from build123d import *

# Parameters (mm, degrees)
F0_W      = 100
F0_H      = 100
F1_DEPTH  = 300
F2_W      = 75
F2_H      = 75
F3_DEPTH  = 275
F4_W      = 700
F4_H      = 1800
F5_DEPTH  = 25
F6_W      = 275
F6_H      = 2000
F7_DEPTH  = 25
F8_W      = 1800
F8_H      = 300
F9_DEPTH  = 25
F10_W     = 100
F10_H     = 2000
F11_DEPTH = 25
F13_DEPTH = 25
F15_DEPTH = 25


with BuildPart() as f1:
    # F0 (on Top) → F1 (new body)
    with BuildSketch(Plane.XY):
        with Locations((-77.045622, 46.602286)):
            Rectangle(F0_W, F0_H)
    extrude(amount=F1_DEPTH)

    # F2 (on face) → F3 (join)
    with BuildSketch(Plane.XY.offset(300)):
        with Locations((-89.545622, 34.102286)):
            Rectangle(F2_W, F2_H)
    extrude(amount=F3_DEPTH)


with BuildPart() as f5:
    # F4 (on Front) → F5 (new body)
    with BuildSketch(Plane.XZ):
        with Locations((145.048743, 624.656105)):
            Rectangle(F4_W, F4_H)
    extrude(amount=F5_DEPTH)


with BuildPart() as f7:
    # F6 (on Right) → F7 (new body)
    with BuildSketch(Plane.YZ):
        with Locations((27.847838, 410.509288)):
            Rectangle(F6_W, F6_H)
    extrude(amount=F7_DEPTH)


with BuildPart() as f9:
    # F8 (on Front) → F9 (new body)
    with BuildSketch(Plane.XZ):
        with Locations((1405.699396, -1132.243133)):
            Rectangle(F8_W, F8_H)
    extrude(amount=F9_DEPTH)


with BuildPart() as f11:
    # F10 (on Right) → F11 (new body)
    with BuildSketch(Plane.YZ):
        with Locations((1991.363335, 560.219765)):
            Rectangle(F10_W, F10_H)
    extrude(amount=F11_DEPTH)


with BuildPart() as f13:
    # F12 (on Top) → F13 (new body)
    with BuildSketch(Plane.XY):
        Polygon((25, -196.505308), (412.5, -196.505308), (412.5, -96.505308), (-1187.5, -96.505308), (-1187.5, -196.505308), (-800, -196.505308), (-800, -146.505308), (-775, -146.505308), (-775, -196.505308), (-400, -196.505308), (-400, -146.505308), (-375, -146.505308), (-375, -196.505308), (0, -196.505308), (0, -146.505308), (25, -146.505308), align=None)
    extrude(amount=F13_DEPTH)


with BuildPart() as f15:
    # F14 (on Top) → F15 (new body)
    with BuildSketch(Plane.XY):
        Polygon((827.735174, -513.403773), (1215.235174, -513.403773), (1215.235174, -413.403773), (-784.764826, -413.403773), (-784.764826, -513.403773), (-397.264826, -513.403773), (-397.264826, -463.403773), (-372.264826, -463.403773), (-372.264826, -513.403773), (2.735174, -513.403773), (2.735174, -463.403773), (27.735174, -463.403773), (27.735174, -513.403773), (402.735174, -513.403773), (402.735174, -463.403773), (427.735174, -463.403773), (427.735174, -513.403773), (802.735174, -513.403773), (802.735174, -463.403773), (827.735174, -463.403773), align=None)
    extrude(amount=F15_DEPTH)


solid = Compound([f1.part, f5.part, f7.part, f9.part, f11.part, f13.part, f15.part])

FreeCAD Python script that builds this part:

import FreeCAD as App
import Part
import Sketcher

V = App.Vector

doc = App.newDocument("Part")
body = doc.addObject("PartDesign::Body", "Body")

# Sketch on XY plane
sketch1 = doc.addObject("Sketcher::SketchObject", "Sketch")
body.addObject(sketch1)
sketch1.AttachmentSupport = (doc.XY_Plane, [""])
sketch1.MapMode = "FlatFace"
sketch1.addGeometry(Part.LineSegment(V(-127, 97, 0), V(-127, -3, 0)), False)
sketch1.addGeometry(Part.LineSegment(V(-127, -3, 0), V(-27, -3, 0)), False)
sketch1.addGeometry(Part.LineSegment(V(-27, -3, 0), V(-27, 97, 0)), False)
sketch1.addGeometry(Part.LineSegment(V(-27, 97, 0), V(-127, 97, 0)), False)
sketch1.addConstraint(Sketcher.Constraint("Coincident", 0, 2, 1, 1))
sketch1.addConstraint(Sketcher.Constraint("Coincident", 1, 2, 2, 1))
sketch1.addConstraint(Sketcher.Constraint("Coincident", 2, 2, 3, 1))
sketch1.addConstraint(Sketcher.Constraint("Coincident", 3, 2, 0, 1))
sketch1.addConstraint(Sketcher.Constraint("Vertical", 0))
sketch1.addConstraint(Sketcher.Constraint("Horizontal", 1))
sketch1.addConstraint(Sketcher.Constraint("Vertical", 2))
sketch1.addConstraint(Sketcher.Constraint("Horizontal", 3))
sketch1.addConstraint(Sketcher.Constraint("Equal", 3, 0))
sketch1.addConstraint(Sketcher.Constraint("DistanceX", 1, 1, 1, 2, 100.0))
sketch1.addConstraint(Sketcher.Constraint("DistanceX", 0, 2, -1, 1, 127.045622))
sketch1.addConstraint(Sketcher.Constraint("DistanceY", 0, 2, -1, 1, 3.397714))
pad1 = doc.addObject("PartDesign::Pad", "Pad")
body.addObject(pad1)
pad1.Profile = sketch1
pad1.Length = 300

# Sketch on XY plane
sketch2 = doc.addObject("Sketcher::SketchObject", "Sketch001")
body.addObject(sketch2)
sketch2.AttachmentSupport = (doc.XY_Plane, [""])
sketch2.MapMode = "FlatFace"
sketch2.AttachmentOffset = App.Placement(V(0, 0, 300), App.Rotation())
sketch2.addGeometry(Part.LineSegment(V(-127, 72, 0), V(-127, -3, 0)), False)
sketch2.addGeometry(Part.LineSegment(V(-127, -3, 0), V(-52, -3, 0)), False)
sketch2.addGeometry(Part.LineSegment(V(-52, -3, 0), V(-52, 72, 0)), False)
sketch2.addGeometry(Part.LineSegment(V(-52, 72, 0), V(-127, 72, 0)), False)
sketch2.addConstraint(Sketcher.Constraint("Coincident", 0, 2, 1, 1))
sketch2.addConstraint(Sketcher.Constraint("Coincident", 1, 2, 2, 1))
sketch2.addConstraint(Sketcher.Constraint("Coincident", 2, 2, 3, 1))
sketch2.addConstraint(Sketcher.Constraint("Coincident", 3, 2, 0, 1))
sketch2.addConstraint(Sketcher.Constraint("Vertical", 0))
sketch2.addConstraint(Sketcher.Constraint("Horizontal", 1))
sketch2.addConstraint(Sketcher.Constraint("Vertical", 2))
sketch2.addConstraint(Sketcher.Constraint("Horizontal", 3))
sketch2.addConstraint(Sketcher.Constraint("Equal", 3, 0))
sketch2.addConstraint(Sketcher.Constraint("DistanceX", 1, 1, 1, 2, 75.0))
sketch2.addConstraint(Sketcher.Constraint("DistanceX", 0, 2, -1, 1, 127.045622))
sketch2.addConstraint(Sketcher.Constraint("DistanceY", 0, 2, -1, 1, 3.397714))
pad2 = doc.addObject("PartDesign::Pad", "Pad001")
body.addObject(pad2)
pad2.Profile = sketch2
pad2.Length = 275
body2 = doc.addObject("PartDesign::Body", "Body001")

# Sketch on XZ plane
sketch3 = doc.addObject("Sketcher::SketchObject", "Sketch002")
body2.addObject(sketch3)
sketch3.AttachmentSupport = (doc.getObject("XZ_Plane001"), [""])
sketch3.MapMode = "FlatFace"
sketch3.addGeometry(Part.LineSegment(V(-205, 1525, 0), V(-205, -275, 0)), False)
sketch3.addGeometry(Part.LineSegment(V(-205, -275, 0), V(495, -275, 0)), False)
sketch3.addGeometry(Part.LineSegment(V(495, -275, 0), V(495, 1525, 0)), False)
sketch3.addGeometry(Part.LineSegment(V(495, 1525, 0), V(-205, 1525, 0)), False)
sketch3.addConstraint(Sketcher.Constraint("Coincident", 0, 2, 1, 1))
sketch3.addConstraint(Sketcher.Constraint("Coincident", 1, 2, 2, 1))
sketch3.addConstraint(Sketcher.Constraint("Coincident", 2, 2, 3, 1))
sketch3.addConstraint(Sketcher.Constraint("Coincident", 3, 2, 0, 1))
sketch3.addConstraint(Sketcher.Constraint("Vertical", 0))
sketch3.addConstraint(Sketcher.Constraint("Horizontal", 1))
sketch3.addConstraint(Sketcher.Constraint("Vertical", 2))
sketch3.addConstraint(Sketcher.Constraint("Horizontal", 3))
sketch3.addConstraint(Sketcher.Constraint("DistanceX", 1, 1, 1, 2, 700.0))
sketch3.addConstraint(Sketcher.Constraint("DistanceY", 0, 2, 0, 1, 1800.0))
sketch3.addConstraint(Sketcher.Constraint("DistanceX", 0, 2, -1, 1, 204.951257))
sketch3.addConstraint(Sketcher.Constraint("DistanceY", 0, 2, -1, 1, 275.343895))
pad3 = doc.addObject("PartDesign::Pad", "Pad002")
body2.addObject(pad3)
pad3.Profile = sketch3
pad3.Length = 25
body3 = doc.addObject("PartDesign::Body", "Body002")

# Sketch on YZ plane
sketch4 = doc.addObject("Sketcher::SketchObject", "Sketch003")
body3.addObject(sketch4)
sketch4.AttachmentSupport = (doc.getObject("YZ_Plane002"), [""])
sketch4.MapMode = "FlatFace"
sketch4.addGeometry(Part.LineSegment(V(-110, 1411, 0), V(-110, -589, 0)), False)
sketch4.addGeometry(Part.LineSegment(V(-110, -589, 0), V(165, -589, 0)), False)
sketch4.addGeometry(Part.LineSegment(V(165, -589, 0), V(165, 1411, 0)), False)
sketch4.addGeometry(Part.LineSegment(V(165, 1411, 0), V(-110, 1411, 0)), False)
sketch4.addConstraint(Sketcher.Constraint("Coincident", 0, 2, 1, 1))
sketch4.addConstraint(Sketcher.Constraint("Coincident", 1, 2, 2, 1))
sketch4.addConstraint(Sketcher.Constraint("Coincident", 2, 2, 3, 1))
sketch4.addConstraint(Sketcher.Constraint("Coincident", 3, 2, 0, 1))
sketch4.addConstraint(Sketcher.Constraint("Vertical", 0))
sketch4.addConstraint(Sketcher.Constraint("Horizontal", 1))
sketch4.addConstraint(Sketcher.Constraint("Vertical", 2))
sketch4.addConstraint(Sketcher.Constraint("Horizontal", 3))
sketch4.addConstraint(Sketcher.Constraint("DistanceX", 1, 1, 1, 2, 275.0))
sketch4.addConstraint(Sketcher.Constraint("DistanceY", 0, 2, 0, 1, 2000.0))
sketch4.addConstraint(Sketcher.Constraint("DistanceY", 0, 2, -1, 1, 589.490712))
sketch4.addConstraint(Sketcher.Constraint("DistanceX", -1, 1, 1, 2, 165.347838))
pad4 = doc.addObject("PartDesign::Pad", "Pad003")
body3.addObject(pad4)
pad4.Profile = sketch4
pad4.Length = 25
body4 = doc.addObject("PartDesign::Body", "Body003")

# Sketch on XZ plane
sketch5 = doc.addObject("Sketcher::SketchObject", "Sketch004")
body4.addObject(sketch5)
sketch5.AttachmentSupport = (doc.getObject("XZ_Plane003"), [""])
sketch5.MapMode = "FlatFace"
sketch5.addGeometry(Part.LineSegment(V(506, -982, 0), V(506, -1282, 0)), False)
sketch5.addGeometry(Part.LineSegment(V(506, -1282, 0), V(2306, -1282, 0)), False)
sketch5.addGeometry(Part.LineSegment(V(2306, -1282, 0), V(2306, -982, 0)), False)
sketch5.addGeometry(Part.LineSegment(V(2306, -982, 0), V(506, -982, 0)), False)
sketch5.addConstraint(Sketcher.Constraint("Coincident", 0, 2, 1, 1))
sketch5.addConstraint(Sketcher.Constraint("Coincident", 1, 2, 2, 1))
sketch5.addConstraint(Sketcher.Constraint("Coincident", 2, 2, 3, 1))
sketch5.addConstraint(Sketcher.Constraint("Coincident", 3, 2, 0, 1))
sketch5.addConstraint(Sketcher.Constraint("Vertical", 0))
sketch5.addConstraint(Sketcher.Constraint("Horizontal", 1))
sketch5.addConstraint(Sketcher.Constraint("Vertical", 2))
sketch5.addConstraint(Sketcher.Constraint("Horizontal", 3))
sketch5.addConstraint(Sketcher.Constraint("DistanceX", 1, 1, 1, 2, 1800.0))
sketch5.addConstraint(Sketcher.Constraint("DistanceY", 0, 2, 0, 1, 300.0))
sketch5.addConstraint(Sketcher.Constraint("DistanceX", -1, 1, 0, 2, 505.699396))
sketch5.addConstraint(Sketcher.Constraint("DistanceY", 0, 2, -1, 1, 1282.243133))
pad5 = doc.addObject("PartDesign::Pad", "Pad004")
body4.addObject(pad5)
pad5.Profile = sketch5
pad5.Length = 25
body5 = doc.addObject("PartDesign::Body", "Body004")

# Sketch on YZ plane
sketch6 = doc.addObject("Sketcher::SketchObject", "Sketch005")
body5.addObject(sketch6)
sketch6.AttachmentSupport = (doc.getObject("YZ_Plane004"), [""])
sketch6.MapMode = "FlatFace"
sketch6.addGeometry(Part.LineSegment(V(1941, 1560, 0), V(1941, -440, 0)), False)
sketch6.addGeometry(Part.LineSegment(V(1941, -440, 0), V(2041, -440, 0)), False)
sketch6.addGeometry(Part.LineSegment(V(2041, -440, 0), V(2041, 1560, 0)), False)
sketch6.addGeometry(Part.LineSegment(V(2041, 1560, 0), V(1941, 1560, 0)), False)
sketch6.addConstraint(Sketcher.Constraint("Coincident", 0, 2, 1, 1))
sketch6.addConstraint(Sketcher.Constraint("Coincident", 1, 2, 2, 1))
sketch6.addConstraint(Sketcher.Constraint("Coincident", 2, 2, 3, 1))
sketch6.addConstraint(Sketcher.Constraint("Coincident", 3, 2, 0, 1))
sketch6.addConstraint(Sketcher.Constraint("Vertical", 0))
sketch6.addConstraint(Sketcher.Constraint("Horizontal", 1))
sketch6.addConstraint(Sketcher.Constraint("Vertical", 2))
sketch6.addConstraint(Sketcher.Constraint("Horizontal", 3))
sketch6.addConstraint(Sketcher.Constraint("DistanceX", 1, 1, 1, 2, 100.0))
sketch6.addConstraint(Sketcher.Constraint("DistanceY", 0, 2, 0, 1, 2000.0))
sketch6.addConstraint(Sketcher.Constraint("DistanceX", -1, 1, 0, 2, 1941.363335))
sketch6.addConstraint(Sketcher.Constraint("DistanceY", 0, 2, -1, 1, 439.780235))
pad6 = doc.addObject("PartDesign::Pad", "Pad005")
body5.addObject(pad6)
pad6.Profile = sketch6
pad6.Length = 25
body6 = doc.addObject("PartDesign::Body", "Body005")

# Sketch on XY plane
sketch7 = doc.addObject("Sketcher::SketchObject", "Sketch006")
body6.addObject(sketch7)
sketch7.AttachmentSupport = (doc.getObject("XY_Plane005"), [""])
sketch7.MapMode = "FlatFace"
sketch7.addGeometry(Part.LineSegment(V(25, -197, 0), V(412, -197, 0)), False)
sketch7.addGeometry(Part.LineSegment(V(412, -197, 0), V(412, -97, 0)), False)
sketch7.addGeometry(Part.LineSegment(V(412, -97, 0), V(-1188, -97, 0)), False)
sketch7.addGeometry(Part.LineSegment(V(-1188, -97, 0), V(-1188, -197, 0)), False)
sketch7.addGeometry(Part.LineSegment(V(-1188, -197, 0), V(-800, -197, 0)), False)
sketch7.addGeometry(Part.LineSegment(V(-800, -197, 0), V(-800, -147, 0)), False)
sketch7.addGeometry(Part.LineSegment(V(-800, -147, 0), V(-775, -147, 0)), False)
sketch7.addGeometry(Part.LineSegment(V(-775, -147, 0), V(-775, -197, 0)), False)
sketch7.addGeometry(Part.LineSegment(V(-775, -197, 0), V(-400, -197, 0)), False)
sketch7.addGeometry(Part.LineSegment(V(-400, -197, 0), V(-400, -147, 0)), False)
sketch7.addGeometry(Part.LineSegment(V(-400, -147, 0), V(-375, -147, 0)), False)
sketch7.addGeometry(Part.LineSegment(V(-375, -147, 0), V(-375, -197, 0)), False)
sketch7.addGeometry(Part.LineSegment(V(-375, -197, 0), V(0, -197, 0)), False)
sketch7.addGeometry(Part.LineSegment(V(0, -197, 0), V(0, -147, 0)), False)
sketch7.addGeometry(Part.LineSegment(V(0, -147, 0), V(25, -147, 0)), False)
sketch7.addGeometry(Part.LineSegment(V(25, -147, 0), V(25, -197, 0)), False)
sketch7.addConstraint(Sketcher.Constraint("Coincident", 0, 2, 1, 1))
sketch7.addConstraint(Sketcher.Constraint("Coincident", 1, 2, 2, 1))
sketch7.addConstraint(Sketcher.Constraint("Coincident", 2, 2, 3, 1))
sketch7.addConstraint(Sketcher.Constraint("Coincident", 3, 2, 4, 1))
sketch7.addConstraint(Sketcher.Constraint("Coincident", 4, 2, 5, 1))
sketch7.addConstraint(Sketcher.Constraint("Coincident", 5, 2, 6, 1))
sketch7.addConstraint(Sketcher.Constraint("Coincident", 6, 2, 7, 1))
sketch7.addConstraint(Sketcher.Constraint("Coincident", 7, 2, 8, 1))
sketch7.addConstraint(Sketcher.Constraint("Coincident", 8, 2, 9, 1))
sketch7.addConstraint(Sketcher.Constraint("Coincident", 9, 2, 10, 1))
sketch7.addConstraint(Sketcher.Constraint("Coincident", 10, 2, 11, 1))
sketch7.addConstraint(Sketcher.Constraint("Coincident", 11, 2, 12, 1))
sketch7.addConstraint(Sketcher.Constraint("Coincident", 12, 2, 13, 1))
sketch7.addConstraint(Sketcher.Constraint("Coincident", 13, 2, 14, 1))
sketch7.addConstraint(Sketcher.Constraint("Coincident", 14, 2, 15, 1))
sketch7.addConstraint(Sketcher.Constraint("Coincident", 15, 2, 0, 1))
sketch7.addConstraint(Sketcher.Constraint("Horizontal", 0))
sketch7.addConstraint(Sketcher.Constraint("Vertical", 1))
sketch7.addConstraint(Sketcher.Constraint("Horizontal", 2))
sketch7.addConstraint(Sketcher.Constraint("Vertical", 3))
sketch7.addConstraint(Sketcher.Constraint("Horizontal", 4))
sketch7.addConstraint(Sketcher.Constraint("Vertical", 5))
sketch7.addConstraint(Sketcher.Constraint("Horizontal", 6))
sketch7.addConstraint(Sketcher.Constraint("Vertical", 7))
sketch7.addConstraint(Sketcher.Constraint("Horizontal", 8))
sketch7.addConstraint(Sketcher.Constraint("Vertical", 9))
sketch7.addConstraint(Sketcher.Constraint("Horizontal", 10))
sketch7.addConstraint(Sketcher.Constraint("Vertical", 11))
sketch7.addConstraint(Sketcher.Constraint("Horizontal", 12))
sketch7.addConstraint(Sketcher.Constraint("Vertical", 13))
sketch7.addConstraint(Sketcher.Constraint("Horizontal", 14))
sketch7.addConstraint(Sketcher.Constraint("Vertical", 15))
sketch7.addConstraint(Sketcher.Constraint("PointOnObject", 12, 2, -2))
sketch7.addConstraint(Sketcher.Constraint("Horizontal", 0, 2, 3, 2))
sketch7.addConstraint(Sketcher.Constraint("Horizontal", 4, 2, 7, 2))
sketch7.addConstraint(Sketcher.Constraint("Horizontal", 6, 2, 9, 2))
sketch7.addConstraint(Sketcher.Constraint("Horizontal", 8, 2, 11, 2))
sketch7.addConstraint(Sketcher.Constraint("Horizontal", 10, 2, 13, 2))
sketch7.addConstraint(Sketcher.Constraint("Equal", 0, 4))
sketch7.addConstraint(Sketcher.Constraint("Equal", 6, 10))
sketch7.addConstraint(Sketcher.Constraint("Equal", 8, 12))
sketch7.addConstraint(Sketcher.Constraint("Equal", 10, 14))
sketch7.addConstraint(Sketcher.Constraint("DistanceX", 2, 2, 2, 1, 1600.0))
sketch7.addConstraint(Sketcher.Constraint("DistanceX", 6, 1, 6, 2, 25.0))
sketch7.addConstraint(Sketcher.Constraint("DistanceX", 8, 1, 8, 2, 375.0))
sketch7.addConstraint(Sketcher.Constraint("DistanceY", 1, 1, 1, 2, 100.0))
sketch7.addConstraint(Sketcher.Constraint("DistanceY", 5, 1, 5, 2, 50.0))
sketch7.addConstraint(Sketcher.Constraint("DistanceY", 0, 2, -1, 1, 196.505308))
pad7 = doc.addObject("PartDesign::Pad", "Pad006")
body6.addObject(pad7)
pad7.Profile = sketch7
pad7.Length = 25
body7 = doc.addObject("PartDesign::Body", "Body006")

# Sketch on XY plane
sketch8 = doc.addObject("Sketcher::SketchObject", "Sketch007")
body7.addObject(sketch8)
sketch8.AttachmentSupport = (doc.getObject("XY_Plane006"), [""])
sketch8.MapMode = "FlatFace"
sketch8.addGeometry(Part.LineSegment(V(828, -513, 0), V(1215, -513, 0)), False)
sketch8.addGeometry(Part.LineSegment(V(1215, -513, 0), V(1215, -413, 0)), False)
sketch8.addGeometry(Part.LineSegment(V(1215, -413, 0), V(-785, -413, 0)), False)
sketch8.addGeometry(Part.LineSegment(V(-785, -413, 0), V(-785, -513, 0)), False)
sketch8.addGeometry(Part.LineSegment(V(-785, -513, 0), V(-397, -513, 0)), False)
sketch8.addGeometry(Part.LineSegment(V(-397, -513, 0), V(-397, -463, 0)), False)
sketch8.addGeometry(Part.LineSegment(V(-397, -463, 0), V(-372, -463, 0)), False)
sketch8.addGeometry(Part.LineSegment(V(-372, -463, 0), V(-372, -513, 0)), False)
sketch8.addGeometry(Part.LineSegment(V(-372, -513, 0), V(3, -513, 0)), False)
sketch8.addGeometry(Part.LineSegment(V(3, -513, 0), V(3, -463, 0)), False)
sketch8.addGeometry(Part.LineSegment(V(3, -463, 0), V(28, -463, 0)), False)
sketch8.addGeometry(Part.LineSegment(V(28, -463, 0), V(28, -513, 0)), False)
sketch8.addGeometry(Part.LineSegment(V(28, -513, 0), V(403, -513, 0)), False)
sketch8.addGeometry(Part.LineSegment(V(403, -513, 0), V(403, -463, 0)), False)
sketch8.addGeometry(Part.LineSegment(V(403, -463, 0), V(428, -463, 0)), False)
sketch8.addGeometry(Part.LineSegment(V(428, -463, 0), V(428, -513, 0)), False)
sketch8.addGeometry(Part.LineSegment(V(428, -513, 0), V(803, -513, 0)), False)
sketch8.addGeometry(Part.LineSegment(V(803, -513, 0), V(803, -463, 0)), False)
sketch8.addGeometry(Part.LineSegment(V(803, -463, 0), V(828, -463, 0)), False)
sketch8.addGeometry(Part.LineSegment(V(828, -463, 0), V(828, -513, 0)), False)
sketch8.addConstraint(Sketcher.Constraint("Coincident", 0, 2, 1, 1))
sketch8.addConstraint(Sketcher.Constraint("Coincident", 1, 2, 2, 1))
sketch8.addConstraint(Sketcher.Constraint("Coincident", 2, 2, 3, 1))
sketch8.addConstraint(Sketcher.Constraint("Coincident", 3, 2, 4, 1))
sketch8.addConstraint(Sketcher.Constraint("Coincident", 4, 2, 5, 1))
sketch8.addConstraint(Sketcher.Constraint("Coincident", 5, 2, 6, 1))
sketch8.addConstraint(Sketcher.Constraint("Coincident", 6, 2, 7, 1))
sketch8.addConstraint(Sketcher.Constraint("Coincident", 7, 2, 8, 1))
sketch8.addConstraint(Sketcher.Constraint("Coincident", 8, 2, 9, 1))
sketch8.addConstraint(Sketcher.Constraint("Coincident", 9, 2, 10, 1))
sketch8.addConstraint(Sketcher.Constraint("Coincident", 10, 2, 11, 1))
sketch8.addConstraint(Sketcher.Constraint("Coincident", 11, 2, 12, 1))
sketch8.addConstraint(Sketcher.Constraint("Coincident", 12, 2, 13, 1))
sketch8.addConstraint(Sketcher.Constraint("Coincident", 13, 2, 14, 1))
sketch8.addConstraint(Sketcher.Constraint("Coincident", 14, 2, 15, 1))
sketch8.addConstraint(Sketcher.Constraint("Coincident", 15, 2, 16, 1))
sketch8.addConstraint(Sketcher.Constraint("Coincident", 16, 2, 17, 1))
sketch8.addConstraint(Sketcher.Constraint("Coincident", 17, 2, 18, 1))
sketch8.addConstraint(Sketcher.Constraint("Coincident", 18, 2, 19, 1))
sketch8.addConstraint(Sketcher.Constraint("Coincident", 19, 2, 0, 1))
sketch8.addConstraint(Sketcher.Constraint("Horizontal", 0))
sketch8.addConstraint(Sketcher.Constraint("Vertical", 1))
sketch8.addConstraint(Sketcher.Constraint("Horizontal", 2))
sketch8.addConstraint(Sketcher.Constraint("Vertical", 3))
sketch8.addConstraint(Sketcher.Constraint("Horizontal", 4))
sketch8.addConstraint(Sketcher.Constraint("Vertical", 5))
sketch8.addConstraint(Sketcher.Constraint("Horizontal", 6))
sketch8.addConstraint(Sketcher.Constraint("Vertical", 7))
sketch8.addConstraint(Sketcher.Constraint("Horizontal", 8))
sketch8.addConstraint(Sketcher.Constraint("Vertical", 9))
sketch8.addConstraint(Sketcher.Constraint("Horizontal", 10))
sketch8.addConstraint(Sketcher.Constraint("Vertical", 11))
sketch8.addConstraint(Sketcher.Constraint("Horizontal", 12))
sketch8.addConstraint(Sketcher.Constraint("Vertical", 13))
sketch8.addConstraint(Sketcher.Constraint("Horizontal", 14))
sketch8.addConstraint(Sketcher.Constraint("Vertical", 15))
sketch8.addConstraint(Sketcher.Constraint("Horizontal", 16))
sketch8.addConstraint(Sketcher.Constraint("Vertical", 17))
sketch8.addConstraint(Sketcher.Constraint("Horizontal", 18))
sketch8.addConstraint(Sketcher.Constraint("Vertical", 19))
sketch8.addConstraint(Sketcher.Constraint("Horizontal", 0, 2, 3, 2))
sketch8.addConstraint(Sketcher.Constraint("Horizontal", 4, 2, 7, 2))
sketch8.addConstraint(Sketcher.Constraint("Horizontal", 6, 2, 9, 2))
sketch8.addConstraint(Sketcher.Constraint("Horizontal", 8, 2, 11, 2))
sketch8.addConstraint(Sketcher.Constraint("Horizontal", 10, 2, 13, 2))
sketch8.addConstraint(Sketcher.Constraint("Horizontal", 12, 2, 15, 2))
sketch8.addConstraint(Sketcher.Constraint("Horizontal", 14, 2, 17, 2))
sketch8.addConstraint(Sketcher.Constraint("Equal", 0, 4))
sketch8.addConstraint(Sketcher.Constraint("Equal", 6, 10))
sketch8.addConstraint(Sketcher.Constraint("Equal", 8, 12))
sketch8.addConstraint(Sketcher.Constraint("Equal", 10, 14))
sketch8.addConstraint(Sketcher.Constraint("Equal", 12, 16))
sketch8.addConstraint(Sketcher.Constraint("Equal", 14, 18))
sketch8.addConstraint(Sketcher.Constraint("DistanceX", 2, 2, 2, 1, 2000.0))
sketch8.addConstraint(Sketcher.Constraint("DistanceX", 6, 1, 6, 2, 25.0))
sketch8.addConstraint(Sketcher.Constraint("DistanceX", 8, 1, 8, 2, 375.0))
sketch8.addConstraint(Sketcher.Constraint("DistanceY", 1, 1, 1, 2, 100.0))
sketch8.addConstraint(Sketcher.Constraint("DistanceY", 5, 1, 5, 2, 50.0))
sketch8.addConstraint(Sketcher.Constraint("DistanceX", -1, 1, 0, 2, 1215.235174))
sketch8.addConstraint(Sketcher.Constraint("DistanceY", 0, 2, -1, 1, 513.403773))
pad8 = doc.addObject("PartDesign::Pad", "Pad007")
body7.addObject(pad8)
pad8.Profile = sketch8
pad8.Length = 25

doc.recompute()
